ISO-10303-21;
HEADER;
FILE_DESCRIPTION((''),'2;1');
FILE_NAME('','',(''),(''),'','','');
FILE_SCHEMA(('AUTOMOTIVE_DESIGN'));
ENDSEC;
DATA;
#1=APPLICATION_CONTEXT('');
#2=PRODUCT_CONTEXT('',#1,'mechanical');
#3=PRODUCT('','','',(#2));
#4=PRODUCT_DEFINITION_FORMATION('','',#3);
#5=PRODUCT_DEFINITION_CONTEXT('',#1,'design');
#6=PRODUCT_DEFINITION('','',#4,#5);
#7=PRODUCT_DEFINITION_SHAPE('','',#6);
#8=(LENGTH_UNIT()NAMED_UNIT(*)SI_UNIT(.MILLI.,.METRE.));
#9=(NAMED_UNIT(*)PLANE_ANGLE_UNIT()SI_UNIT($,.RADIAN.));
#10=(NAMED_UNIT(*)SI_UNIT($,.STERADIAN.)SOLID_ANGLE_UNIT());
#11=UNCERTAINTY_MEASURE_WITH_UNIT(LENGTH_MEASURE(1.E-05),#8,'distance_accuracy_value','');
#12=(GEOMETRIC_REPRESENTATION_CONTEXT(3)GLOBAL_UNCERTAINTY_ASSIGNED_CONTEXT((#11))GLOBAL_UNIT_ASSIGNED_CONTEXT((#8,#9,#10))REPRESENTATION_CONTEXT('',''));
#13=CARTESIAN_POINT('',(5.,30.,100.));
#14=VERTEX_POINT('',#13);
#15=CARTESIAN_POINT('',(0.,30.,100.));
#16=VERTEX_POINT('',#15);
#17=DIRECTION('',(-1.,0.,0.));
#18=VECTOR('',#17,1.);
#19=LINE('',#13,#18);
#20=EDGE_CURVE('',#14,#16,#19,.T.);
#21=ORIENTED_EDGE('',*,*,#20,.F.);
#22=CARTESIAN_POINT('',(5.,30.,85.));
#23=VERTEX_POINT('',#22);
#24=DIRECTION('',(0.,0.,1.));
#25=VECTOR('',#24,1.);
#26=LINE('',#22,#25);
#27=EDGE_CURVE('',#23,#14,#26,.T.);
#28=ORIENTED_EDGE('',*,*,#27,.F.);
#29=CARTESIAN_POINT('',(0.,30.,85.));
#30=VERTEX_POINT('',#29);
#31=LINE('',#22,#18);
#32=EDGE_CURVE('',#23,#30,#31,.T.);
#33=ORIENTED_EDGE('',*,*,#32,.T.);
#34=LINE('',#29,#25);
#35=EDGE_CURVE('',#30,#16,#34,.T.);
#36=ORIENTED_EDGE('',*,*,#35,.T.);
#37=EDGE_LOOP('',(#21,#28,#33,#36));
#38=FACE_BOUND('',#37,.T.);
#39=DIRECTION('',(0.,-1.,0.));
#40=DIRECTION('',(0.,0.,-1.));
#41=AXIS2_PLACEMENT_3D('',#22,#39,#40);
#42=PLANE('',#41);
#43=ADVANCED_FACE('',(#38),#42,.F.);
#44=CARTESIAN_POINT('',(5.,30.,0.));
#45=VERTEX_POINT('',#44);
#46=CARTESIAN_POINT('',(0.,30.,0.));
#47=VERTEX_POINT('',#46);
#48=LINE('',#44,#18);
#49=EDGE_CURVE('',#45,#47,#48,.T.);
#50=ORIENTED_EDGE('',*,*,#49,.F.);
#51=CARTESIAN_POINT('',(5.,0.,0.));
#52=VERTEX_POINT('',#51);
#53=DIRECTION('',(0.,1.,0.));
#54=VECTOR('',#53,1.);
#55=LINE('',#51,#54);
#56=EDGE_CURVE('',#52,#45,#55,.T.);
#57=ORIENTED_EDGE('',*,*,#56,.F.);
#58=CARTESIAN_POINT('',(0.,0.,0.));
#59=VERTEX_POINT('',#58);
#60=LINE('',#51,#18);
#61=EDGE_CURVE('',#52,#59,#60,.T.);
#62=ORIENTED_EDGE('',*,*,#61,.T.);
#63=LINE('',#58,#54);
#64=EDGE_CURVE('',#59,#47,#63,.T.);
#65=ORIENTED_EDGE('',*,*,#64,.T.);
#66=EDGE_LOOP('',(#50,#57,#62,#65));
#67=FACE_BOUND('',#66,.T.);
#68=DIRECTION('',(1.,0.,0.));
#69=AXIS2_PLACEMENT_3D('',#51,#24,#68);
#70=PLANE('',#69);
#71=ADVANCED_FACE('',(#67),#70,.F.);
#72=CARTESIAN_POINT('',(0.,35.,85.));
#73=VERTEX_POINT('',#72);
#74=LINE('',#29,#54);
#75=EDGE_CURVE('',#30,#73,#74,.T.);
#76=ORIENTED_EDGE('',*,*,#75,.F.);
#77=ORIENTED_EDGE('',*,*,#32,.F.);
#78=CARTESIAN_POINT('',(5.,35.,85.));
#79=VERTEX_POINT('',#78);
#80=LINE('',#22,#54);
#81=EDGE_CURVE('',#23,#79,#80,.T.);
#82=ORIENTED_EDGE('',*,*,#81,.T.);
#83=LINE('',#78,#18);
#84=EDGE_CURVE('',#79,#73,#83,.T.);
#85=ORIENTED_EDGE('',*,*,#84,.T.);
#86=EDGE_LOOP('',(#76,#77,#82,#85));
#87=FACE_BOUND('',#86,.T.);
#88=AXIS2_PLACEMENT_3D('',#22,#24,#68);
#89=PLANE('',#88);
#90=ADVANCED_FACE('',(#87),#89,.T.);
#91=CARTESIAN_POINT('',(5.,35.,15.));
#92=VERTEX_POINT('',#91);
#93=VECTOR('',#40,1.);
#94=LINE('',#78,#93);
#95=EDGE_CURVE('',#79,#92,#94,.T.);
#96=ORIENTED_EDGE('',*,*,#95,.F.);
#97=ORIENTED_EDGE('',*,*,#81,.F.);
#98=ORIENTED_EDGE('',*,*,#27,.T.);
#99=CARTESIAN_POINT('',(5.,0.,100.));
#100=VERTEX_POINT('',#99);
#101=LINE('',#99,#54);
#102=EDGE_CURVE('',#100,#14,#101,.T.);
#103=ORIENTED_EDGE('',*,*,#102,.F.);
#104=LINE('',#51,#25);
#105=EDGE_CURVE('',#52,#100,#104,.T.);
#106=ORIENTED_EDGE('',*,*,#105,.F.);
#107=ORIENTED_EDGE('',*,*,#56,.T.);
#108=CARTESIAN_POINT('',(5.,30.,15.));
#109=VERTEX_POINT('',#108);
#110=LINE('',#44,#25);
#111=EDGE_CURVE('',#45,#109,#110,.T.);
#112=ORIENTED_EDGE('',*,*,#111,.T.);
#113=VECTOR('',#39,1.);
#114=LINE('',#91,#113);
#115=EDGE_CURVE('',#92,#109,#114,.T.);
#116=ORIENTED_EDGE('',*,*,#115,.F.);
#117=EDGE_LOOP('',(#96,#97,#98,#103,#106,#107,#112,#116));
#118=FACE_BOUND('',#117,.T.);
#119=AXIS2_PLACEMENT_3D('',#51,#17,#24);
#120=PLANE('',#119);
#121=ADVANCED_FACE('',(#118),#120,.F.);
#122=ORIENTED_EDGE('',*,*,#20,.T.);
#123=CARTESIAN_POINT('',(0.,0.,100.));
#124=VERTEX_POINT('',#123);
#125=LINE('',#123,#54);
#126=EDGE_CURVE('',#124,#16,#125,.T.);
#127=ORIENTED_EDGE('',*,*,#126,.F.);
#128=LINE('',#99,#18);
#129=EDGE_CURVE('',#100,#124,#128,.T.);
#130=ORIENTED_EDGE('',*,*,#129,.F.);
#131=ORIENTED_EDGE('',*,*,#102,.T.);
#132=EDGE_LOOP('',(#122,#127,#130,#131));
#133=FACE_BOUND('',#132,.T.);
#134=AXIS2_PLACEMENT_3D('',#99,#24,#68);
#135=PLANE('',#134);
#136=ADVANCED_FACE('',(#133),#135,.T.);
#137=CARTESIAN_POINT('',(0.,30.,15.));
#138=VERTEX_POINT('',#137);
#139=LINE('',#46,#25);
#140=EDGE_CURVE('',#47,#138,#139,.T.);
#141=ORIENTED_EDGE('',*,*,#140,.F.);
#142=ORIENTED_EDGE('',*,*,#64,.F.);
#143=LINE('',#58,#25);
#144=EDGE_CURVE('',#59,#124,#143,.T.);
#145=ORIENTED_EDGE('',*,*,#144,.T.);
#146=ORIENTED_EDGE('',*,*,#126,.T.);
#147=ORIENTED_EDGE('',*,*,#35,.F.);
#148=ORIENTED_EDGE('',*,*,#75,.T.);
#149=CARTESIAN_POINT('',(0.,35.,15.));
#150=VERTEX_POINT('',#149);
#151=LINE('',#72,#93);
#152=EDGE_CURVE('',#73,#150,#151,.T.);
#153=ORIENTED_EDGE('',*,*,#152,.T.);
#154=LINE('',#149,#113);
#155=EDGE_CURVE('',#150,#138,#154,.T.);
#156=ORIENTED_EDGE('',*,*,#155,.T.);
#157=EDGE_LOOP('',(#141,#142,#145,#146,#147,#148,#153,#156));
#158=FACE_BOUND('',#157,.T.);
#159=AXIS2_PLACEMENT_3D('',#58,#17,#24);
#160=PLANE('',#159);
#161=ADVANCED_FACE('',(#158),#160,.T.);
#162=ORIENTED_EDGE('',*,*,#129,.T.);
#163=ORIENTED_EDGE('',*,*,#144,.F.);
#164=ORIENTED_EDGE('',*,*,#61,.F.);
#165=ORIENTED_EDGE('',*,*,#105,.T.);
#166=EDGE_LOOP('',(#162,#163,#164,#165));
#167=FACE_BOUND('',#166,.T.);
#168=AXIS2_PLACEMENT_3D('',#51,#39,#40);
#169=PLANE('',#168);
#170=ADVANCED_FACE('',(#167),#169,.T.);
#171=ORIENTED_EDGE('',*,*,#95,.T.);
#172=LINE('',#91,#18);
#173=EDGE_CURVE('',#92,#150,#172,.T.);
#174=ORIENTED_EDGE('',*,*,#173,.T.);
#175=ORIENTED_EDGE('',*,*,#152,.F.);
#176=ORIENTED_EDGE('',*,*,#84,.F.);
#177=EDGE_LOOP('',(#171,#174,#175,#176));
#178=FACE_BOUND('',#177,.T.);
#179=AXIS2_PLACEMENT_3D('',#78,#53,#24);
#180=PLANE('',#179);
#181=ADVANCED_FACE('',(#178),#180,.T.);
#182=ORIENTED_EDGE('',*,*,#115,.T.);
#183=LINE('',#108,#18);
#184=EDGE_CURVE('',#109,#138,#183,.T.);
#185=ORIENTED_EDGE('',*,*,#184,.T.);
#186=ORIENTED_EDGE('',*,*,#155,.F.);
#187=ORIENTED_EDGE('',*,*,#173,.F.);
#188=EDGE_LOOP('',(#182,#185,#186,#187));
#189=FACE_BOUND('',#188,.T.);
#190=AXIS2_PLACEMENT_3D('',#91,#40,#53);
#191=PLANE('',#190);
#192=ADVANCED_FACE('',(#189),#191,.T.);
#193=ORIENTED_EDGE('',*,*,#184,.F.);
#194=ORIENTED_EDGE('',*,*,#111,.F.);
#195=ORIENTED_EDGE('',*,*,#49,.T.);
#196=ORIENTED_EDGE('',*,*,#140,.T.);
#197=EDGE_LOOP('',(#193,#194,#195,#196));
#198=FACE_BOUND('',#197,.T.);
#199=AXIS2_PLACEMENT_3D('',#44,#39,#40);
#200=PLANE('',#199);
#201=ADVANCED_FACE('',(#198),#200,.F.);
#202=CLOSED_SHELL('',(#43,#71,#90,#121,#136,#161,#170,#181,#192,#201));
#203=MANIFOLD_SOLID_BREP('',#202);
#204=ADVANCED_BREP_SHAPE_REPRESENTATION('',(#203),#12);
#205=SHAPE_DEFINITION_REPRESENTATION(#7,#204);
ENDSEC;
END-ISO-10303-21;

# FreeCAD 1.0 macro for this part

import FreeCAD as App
import Part
import Sketcher

doc = App.newDocument("Part")
body = doc.addObject("PartDesign::Body", "Body")

sketch1 = body.newObject("Sketcher::SketchObject", "Sketch")
sketch1.AttachmentSupport = (doc.getObject("YZ_Plane"), [""])
sketch1.MapMode = "FlatFace"
sketch1.addGeometry(Part.LineSegment(App.Vector(35, 85, 0), App.Vector(30, 85, 0)), False)
sketch1.addGeometry(Part.LineSegment(App.Vector(30, 85, 0), App.Vector(30, 100, 0)), False)
sketch1.addGeometry(Part.LineSegment(App.Vector(30, 100, 0), App.Vector(0, 100, 0)), False)
sketch1.addGeometry(Part.LineSegment(App.Vector(0, 100, 0), App.Vector(0, 0, 0)), False)
sketch1.addGeometry(Part.LineSegment(App.Vector(0, 0, 0), App.Vector(30, 0, 0)), False)
sketch1.addGeometry(Part.LineSegment(App.Vector(30, 0, 0), App.Vector(30, 15, 0)), False)
sketch1.addGeometry(Part.LineSegment(App.Vector(30, 15, 0), App.Vector(35, 15, 0)), False)
sketch1.addGeometry(Part.LineSegment(App.Vector(35, 15, 0), App.Vector(35, 85, 0)), False)
sketch1.addConstraint(Sketcher.Constraint("Coincident", 0, 2, 1, 1))
sketch1.addConstraint(Sketcher.Constraint("Coincident", 1, 2, 2, 1))
sketch1.addConstraint(Sketcher.Constraint("Coincident", 2, 2, 3, 1))
sketch1.addConstraint(Sketcher.Constraint("Coincident", 3, 2, 4, 1))
sketch1.addConstraint(Sketcher.Constraint("Coincident", 4, 2, 5, 1))
sketch1.addConstraint(Sketcher.Constraint("Coincident", 5, 2, 6, 1))
sketch1.addConstraint(Sketcher.Constraint("Coincident", 6, 2, 7, 1))
sketch1.addConstraint(Sketcher.Constraint("Coincident", 7, 2, 0, 1))
sketch1.addConstraint(Sketcher.Constraint("Horizontal", 0))
sketch1.addConstraint(Sketcher.Constraint("Vertical", 1))
sketch1.addConstraint(Sketcher.Constraint("Horizontal", 2))
sketch1.addConstraint(Sketcher.Constraint("Vertical", 3))
sketch1.addConstraint(Sketcher.Constraint("Horizontal", 4))
sketch1.addConstraint(Sketcher.Constraint("Vertical", 5))
sketch1.addConstraint(Sketcher.Constraint("Horizontal", 6))
sketch1.addConstraint(Sketcher.Constraint("Vertical", 7))
sketch1.addConstraint(Sketcher.Constraint("Coincident", 3, 2, -1, 1))
sketch1.addConstraint(Sketcher.Constraint("Vertical", 1, 2, 4, 2))
sketch1.addConstraint(Sketcher.Constraint("Equal", 1, 5))
sketch1.addConstraint(Sketcher.Constraint("DistanceX", 0, 2, 0, 1, 5.0))
sketch1.addConstraint(Sketcher.Constraint("DistanceX", 2, 2, 2, 1, 30.0))
sketch1.addConstraint(Sketcher.Constraint("DistanceY", 1, 1, 1, 2, 15.0))
sketch1.addConstraint(Sketcher.Constraint("DistanceY", 3, 2, 3, 1, 100.0))
pad1 = body.newObject("PartDesign::Pad", "Pad")
pad1.Profile = sketch1
pad1.Length = 5

doc.recompute()
